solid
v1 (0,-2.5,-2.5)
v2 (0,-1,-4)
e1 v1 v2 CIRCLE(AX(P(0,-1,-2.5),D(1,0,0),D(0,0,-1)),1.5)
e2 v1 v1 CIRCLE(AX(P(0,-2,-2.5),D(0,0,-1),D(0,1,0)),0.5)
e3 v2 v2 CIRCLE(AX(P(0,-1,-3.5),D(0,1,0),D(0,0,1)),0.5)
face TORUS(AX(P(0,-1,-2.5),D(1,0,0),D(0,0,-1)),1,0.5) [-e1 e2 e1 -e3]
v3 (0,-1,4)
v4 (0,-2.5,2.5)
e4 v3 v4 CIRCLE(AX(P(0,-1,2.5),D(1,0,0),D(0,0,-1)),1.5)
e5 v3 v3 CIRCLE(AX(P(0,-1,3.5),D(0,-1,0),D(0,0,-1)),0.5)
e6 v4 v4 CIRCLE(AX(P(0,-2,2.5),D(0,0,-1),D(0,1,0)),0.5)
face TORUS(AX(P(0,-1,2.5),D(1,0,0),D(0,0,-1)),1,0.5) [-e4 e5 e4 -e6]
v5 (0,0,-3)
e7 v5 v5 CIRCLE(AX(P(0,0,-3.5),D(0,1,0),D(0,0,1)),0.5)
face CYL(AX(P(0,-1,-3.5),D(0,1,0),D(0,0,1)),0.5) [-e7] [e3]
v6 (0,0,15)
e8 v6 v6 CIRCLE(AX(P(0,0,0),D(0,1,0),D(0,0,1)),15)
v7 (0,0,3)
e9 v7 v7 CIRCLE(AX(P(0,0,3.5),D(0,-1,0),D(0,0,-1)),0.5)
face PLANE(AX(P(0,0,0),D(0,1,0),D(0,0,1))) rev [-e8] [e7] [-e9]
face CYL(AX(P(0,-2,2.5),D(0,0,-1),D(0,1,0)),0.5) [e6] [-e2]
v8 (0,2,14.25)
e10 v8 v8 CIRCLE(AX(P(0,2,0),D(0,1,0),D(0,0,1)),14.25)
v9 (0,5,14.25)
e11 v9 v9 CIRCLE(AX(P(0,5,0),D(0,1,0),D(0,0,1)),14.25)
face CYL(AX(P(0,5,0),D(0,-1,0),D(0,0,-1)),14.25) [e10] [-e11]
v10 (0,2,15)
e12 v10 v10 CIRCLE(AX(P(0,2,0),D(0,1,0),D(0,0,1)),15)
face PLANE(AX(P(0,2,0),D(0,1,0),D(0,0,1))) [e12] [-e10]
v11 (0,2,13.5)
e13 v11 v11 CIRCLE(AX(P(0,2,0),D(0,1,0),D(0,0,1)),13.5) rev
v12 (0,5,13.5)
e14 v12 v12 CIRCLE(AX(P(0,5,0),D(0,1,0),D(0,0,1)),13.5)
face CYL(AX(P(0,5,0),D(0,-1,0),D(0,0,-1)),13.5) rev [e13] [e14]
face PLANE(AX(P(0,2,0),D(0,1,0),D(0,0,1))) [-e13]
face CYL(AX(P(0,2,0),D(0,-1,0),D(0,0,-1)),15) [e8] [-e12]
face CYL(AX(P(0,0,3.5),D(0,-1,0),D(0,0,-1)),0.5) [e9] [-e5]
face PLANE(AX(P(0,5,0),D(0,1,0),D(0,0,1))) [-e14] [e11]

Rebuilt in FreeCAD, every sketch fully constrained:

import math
import FreeCAD as App
import Part
import Sketcher

V = App.Vector

doc = App.newDocument("Part")
body = doc.addObject("PartDesign::Body", "Body")

# Sketch on XZ plane
sketch1 = doc.addObject("Sketcher::SketchObject", "Sketch")
body.addObject(sketch1)
sketch1.AttachmentSupport = (doc.XZ_Plane, [""])
sketch1.MapMode = "FlatFace"
sketch1.addGeometry(Part.Circle(V(0, 0, 0), V(0, 0, 1), 15), False)
sketch1.addConstraint([
    Sketcher.Constraint("Coincident", 0, 3, -1, 1),
    Sketcher.Constraint("Diameter", 0, 30.0),
])
pad1 = doc.addObject("PartDesign::Pad", "Pad")
body.addObject(pad1)
pad1.Profile = sketch1
pad1.Length = 2
pad1.Reversed = True

# Sketch on XZ plane
sketch2 = doc.addObject("Sketcher::SketchObject", "Sketch001")
body.addObject(sketch2)
sketch2.AttachmentSupport = (doc.XZ_Plane, [""])
sketch2.MapMode = "FlatFace"
sketch2.AttachmentOffset = App.Placement(V(0, 0, -2), App.Rotation())
sketch2.addGeometry([
    Part.Circle(V(0, 0, 0), V(0, 0, 1), 14),
    Part.Circle(V(0, 0, 0), V(0, 0, 1), 14),
], False)
sketch2.addConstraint([
    Sketcher.Constraint("Coincident", 0, 3, -1, 1),
    Sketcher.Constraint("Coincident", 1, 3, -1, 1),
    Sketcher.Constraint("Diameter", 1, 27.0),
    Sketcher.Constraint("Diameter", 0, 28.5),
])
pad2 = doc.addObject("PartDesign::Pad", "Pad001")
body.addObject(pad2)
pad2.Profile = sketch2
pad2.Length = 3
pad2.Reversed = True

# Sketch on XZ plane
sketch3 = doc.addObject("Sketcher::SketchObject", "Sketch002")
body.addObject(sketch3)
sketch3.AttachmentSupport = (doc.XZ_Plane, [""])
sketch3.MapMode = "FlatFace"
sketch3.addGeometry(Part.Circle(V(0, 3.5, 0), V(0, 0, 1), 0.5), False)
sketch3.addConstraint([
    Sketcher.Constraint("PointOnObject", 0, 3, -2),
    Sketcher.Constraint("Diameter", 0, 1.0),
    Sketcher.Constraint("DistanceY", -1, 1, 0, 3, 3.5),
])

# Sketch on YZ plane
sketch4 = doc.addObject("Sketcher::SketchObject", "Sketch003")
body.addObject(sketch4)
sketch4.AttachmentSupport = (doc.YZ_Plane, [""])
sketch4.MapMode = "FlatFace"
sketch4.addGeometry([
    Part.LineSegment(V(0, 3.5, 0), V(-1, 3.5, 0)),  # 0
    Part.ArcOfCircle(Part.Circle(V(-1, 2.5, 0), V(0, 0, 1), 1), math.radians(90), math.radians(180)),  # 1
    Part.LineSegment(V(-2, 2.5, 0), V(-2, -2.5, 0)),  # 2
    Part.ArcOfCircle(Part.Circle(V(-1, -2.5, 0), V(0, 0, 1), 1), math.radians(-180), math.radians(-90)),  # 3
    Part.LineSegment(V(-1, -3.5, 0), V(0, -3.5, 0)),  # 4
], False)
sketch4.addConstraint([
    Sketcher.Constraint("Tangent", 0, 2, 1, 1),
    Sketcher.Constraint("Tangent", 1, 2, 2, 1),
    Sketcher.Constraint("Tangent", 2, 2, 3, 1),
    Sketcher.Constraint("Tangent", 3, 2, 4, 1),
    Sketcher.Constraint("Horizontal", 0),
    Sketcher.Constraint("Vertical", 2),
    Sketcher.Constraint("Horizontal", 4),
    Sketcher.Constraint("Equal", 1, 3),
    Sketcher.Constraint("Symmetric", 0, 1, 4, 2, -1, 1),
    Sketcher.Constraint("PointOnObject", 0, 1, -2),
    Sketcher.Constraint("Radius", 1, 1.0),
    Sketcher.Constraint("DistanceX", 0, 2, 0, 1, 1.0),
    Sketcher.Constraint("DistanceY", 2, 2, 2, 1, 5.0),
])
doc.recompute()

additivepipe = doc.addObject("PartDesign::AdditivePipe", "AdditivePipe")
body.addObject(additivepipe)
additivepipe.Profile = sketch3
additivepipe.Spine = (sketch4, ["Edge1", "Edge2", "Edge3", "Edge4", "Edge5"])

doc.recompute()
